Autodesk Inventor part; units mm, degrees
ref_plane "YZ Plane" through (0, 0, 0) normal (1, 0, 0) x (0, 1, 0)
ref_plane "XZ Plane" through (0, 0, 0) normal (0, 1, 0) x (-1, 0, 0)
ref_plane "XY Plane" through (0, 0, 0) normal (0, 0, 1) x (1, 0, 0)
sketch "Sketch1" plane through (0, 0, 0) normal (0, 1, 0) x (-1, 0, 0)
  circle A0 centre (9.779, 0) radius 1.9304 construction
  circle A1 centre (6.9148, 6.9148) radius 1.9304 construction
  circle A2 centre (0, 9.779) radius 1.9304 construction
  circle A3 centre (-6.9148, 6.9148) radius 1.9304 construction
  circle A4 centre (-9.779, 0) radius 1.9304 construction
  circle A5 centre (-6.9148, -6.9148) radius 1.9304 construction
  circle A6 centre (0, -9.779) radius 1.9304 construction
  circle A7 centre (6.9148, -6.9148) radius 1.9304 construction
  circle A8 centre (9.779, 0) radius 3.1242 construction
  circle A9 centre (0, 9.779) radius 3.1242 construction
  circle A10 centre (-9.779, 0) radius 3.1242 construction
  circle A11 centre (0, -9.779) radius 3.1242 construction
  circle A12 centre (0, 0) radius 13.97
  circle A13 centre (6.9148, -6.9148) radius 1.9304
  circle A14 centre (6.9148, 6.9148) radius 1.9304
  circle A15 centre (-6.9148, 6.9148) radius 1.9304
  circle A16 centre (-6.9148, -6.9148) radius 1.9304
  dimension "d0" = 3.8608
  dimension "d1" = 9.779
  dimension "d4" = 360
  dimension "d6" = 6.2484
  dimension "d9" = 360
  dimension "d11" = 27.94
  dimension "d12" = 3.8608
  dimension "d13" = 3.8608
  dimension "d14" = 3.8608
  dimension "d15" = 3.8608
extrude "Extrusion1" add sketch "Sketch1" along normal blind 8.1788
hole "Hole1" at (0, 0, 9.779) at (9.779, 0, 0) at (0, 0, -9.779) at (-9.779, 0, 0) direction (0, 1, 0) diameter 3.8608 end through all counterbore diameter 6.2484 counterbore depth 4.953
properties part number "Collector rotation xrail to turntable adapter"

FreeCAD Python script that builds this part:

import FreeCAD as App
import Part
import Sketcher

V = App.Vector
Q = App.Units.Quantity

doc = App.newDocument("Part")
body = doc.addObject("PartDesign::Body", "Body")

sketch1 = body.newObject("Sketcher::SketchObject", "Sketch")
sketch1.AttachmentSupport = (doc.getObject("XZ_Plane"), [""])
sketch1.MapMode = "FlatFace"
sketch1.addGeometry(Part.Circle(V(0, 0, 0), V(0, 0, 1), 14), False)
sketch1.addGeometry(Part.Circle(V(6.9, -6.9, 0), V(0, 0, 1), 1.9), False)
sketch1.addGeometry(Part.Circle(V(-6.9, -6.9, 0), V(0, 0, 1), 1.9), False)
sketch1.addGeometry(Part.Circle(V(6.9, 6.9, 0), V(0, 0, 1), 1.9), False)
sketch1.addGeometry(Part.Circle(V(-6.9, 6.9, 0), V(0, 0, 1), 1.9), False)
sketch1.addConstraint(Sketcher.Constraint("Coincident", 0, 3, -1, 1))
sketch1.addConstraint(Sketcher.Constraint("Equal", 1, 2))
sketch1.addConstraint(Sketcher.Constraint("Equal", 2, 3))
sketch1.addConstraint(Sketcher.Constraint("Equal", 3, 4))
sketch1.addConstraint(Sketcher.Constraint("Symmetric", 2, 3, 3, 3, -1, 1))
sketch1.addConstraint(Sketcher.Constraint("Symmetric", 1, 3, 4, 3, -1, 1))
sketch1.addConstraint(Sketcher.Constraint("Symmetric", 1, 3, 2, 3, -2))
sketch1.addConstraint(Sketcher.Constraint("Diameter", 0, Q("1.1 in")))
sketch1.addConstraint(Sketcher.Constraint("Diameter", 1, Q("0.152 in")))
sketch1.addConstraint(Sketcher.Constraint("DistanceX", -1, 1, 1, 3, 6.9148))
sketch1.addConstraint(Sketcher.Constraint("DistanceY", 1, 3, -1, 1, 6.9148))
pad1 = body.newObject("PartDesign::Pad", "Pad")
pad1.Profile = sketch1
pad1.Length = Q("0.322 in")
pad1.Reversed = True

sketch2 = body.newObject("Sketcher::SketchObject", "Sketch001")
sketch2.AttachmentSupport = (doc.getObject("XZ_Plane"), [""])
sketch2.MapMode = "FlatFace"
sketch2.addGeometry(Part.Circle(V(0, 9.8, 0), V(0, 0, 1), 1.9), False)
sketch2.addGeometry(Part.Circle(V(9.8, 0, 0), V(0, 0, 1), 1.9), False)
sketch2.addGeometry(Part.Circle(V(0, -9.8, 0), V(0, 0, 1), 1.9), False)
sketch2.addGeometry(Part.Circle(V(-9.8, 0, 0), V(0, 0, 1), 1.9), False)
sketch2.addConstraint(Sketcher.Constraint("Equal", 0, 1))
sketch2.addConstraint(Sketcher.Constraint("Equal", 1, 2))
sketch2.addConstraint(Sketcher.Constraint("Equal", 2, 3))
sketch2.addConstraint(Sketcher.Constraint("Symmetric", 0, 3, 2, 3, -1, 1))
sketch2.addConstraint(Sketcher.Constraint("Symmetric", 1, 3, 3, 3, -1, 1))
sketch2.addConstraint(Sketcher.Constraint("PointOnObject", 0, 3, -2))
sketch2.addConstraint(Sketcher.Constraint("PointOnObject", 1, 3, -1))
sketch2.addConstraint(Sketcher.Constraint("Diameter", 0, Q("0.152 in")))
sketch2.addConstraint(Sketcher.Constraint("DistanceY", 2, 3, 0, 3, Q("0.77 in")))
sketch2.addConstraint(Sketcher.Constraint("DistanceX", 3, 3, 1, 3, Q("0.77 in")))
doc.recompute()
hole = body.newObject("PartDesign::Hole", "Hole")
hole.Profile = sketch2
hole.ThreadType = "None"
hole.Diameter = Q("0.152 in")
hole.DepthType = "ThroughAll"
hole.HoleCutType = "Counterbore"
hole.HoleCutDiameter = Q("0.246 in")
hole.HoleCutDepth = Q("0.195 in")

doc.recompute()
